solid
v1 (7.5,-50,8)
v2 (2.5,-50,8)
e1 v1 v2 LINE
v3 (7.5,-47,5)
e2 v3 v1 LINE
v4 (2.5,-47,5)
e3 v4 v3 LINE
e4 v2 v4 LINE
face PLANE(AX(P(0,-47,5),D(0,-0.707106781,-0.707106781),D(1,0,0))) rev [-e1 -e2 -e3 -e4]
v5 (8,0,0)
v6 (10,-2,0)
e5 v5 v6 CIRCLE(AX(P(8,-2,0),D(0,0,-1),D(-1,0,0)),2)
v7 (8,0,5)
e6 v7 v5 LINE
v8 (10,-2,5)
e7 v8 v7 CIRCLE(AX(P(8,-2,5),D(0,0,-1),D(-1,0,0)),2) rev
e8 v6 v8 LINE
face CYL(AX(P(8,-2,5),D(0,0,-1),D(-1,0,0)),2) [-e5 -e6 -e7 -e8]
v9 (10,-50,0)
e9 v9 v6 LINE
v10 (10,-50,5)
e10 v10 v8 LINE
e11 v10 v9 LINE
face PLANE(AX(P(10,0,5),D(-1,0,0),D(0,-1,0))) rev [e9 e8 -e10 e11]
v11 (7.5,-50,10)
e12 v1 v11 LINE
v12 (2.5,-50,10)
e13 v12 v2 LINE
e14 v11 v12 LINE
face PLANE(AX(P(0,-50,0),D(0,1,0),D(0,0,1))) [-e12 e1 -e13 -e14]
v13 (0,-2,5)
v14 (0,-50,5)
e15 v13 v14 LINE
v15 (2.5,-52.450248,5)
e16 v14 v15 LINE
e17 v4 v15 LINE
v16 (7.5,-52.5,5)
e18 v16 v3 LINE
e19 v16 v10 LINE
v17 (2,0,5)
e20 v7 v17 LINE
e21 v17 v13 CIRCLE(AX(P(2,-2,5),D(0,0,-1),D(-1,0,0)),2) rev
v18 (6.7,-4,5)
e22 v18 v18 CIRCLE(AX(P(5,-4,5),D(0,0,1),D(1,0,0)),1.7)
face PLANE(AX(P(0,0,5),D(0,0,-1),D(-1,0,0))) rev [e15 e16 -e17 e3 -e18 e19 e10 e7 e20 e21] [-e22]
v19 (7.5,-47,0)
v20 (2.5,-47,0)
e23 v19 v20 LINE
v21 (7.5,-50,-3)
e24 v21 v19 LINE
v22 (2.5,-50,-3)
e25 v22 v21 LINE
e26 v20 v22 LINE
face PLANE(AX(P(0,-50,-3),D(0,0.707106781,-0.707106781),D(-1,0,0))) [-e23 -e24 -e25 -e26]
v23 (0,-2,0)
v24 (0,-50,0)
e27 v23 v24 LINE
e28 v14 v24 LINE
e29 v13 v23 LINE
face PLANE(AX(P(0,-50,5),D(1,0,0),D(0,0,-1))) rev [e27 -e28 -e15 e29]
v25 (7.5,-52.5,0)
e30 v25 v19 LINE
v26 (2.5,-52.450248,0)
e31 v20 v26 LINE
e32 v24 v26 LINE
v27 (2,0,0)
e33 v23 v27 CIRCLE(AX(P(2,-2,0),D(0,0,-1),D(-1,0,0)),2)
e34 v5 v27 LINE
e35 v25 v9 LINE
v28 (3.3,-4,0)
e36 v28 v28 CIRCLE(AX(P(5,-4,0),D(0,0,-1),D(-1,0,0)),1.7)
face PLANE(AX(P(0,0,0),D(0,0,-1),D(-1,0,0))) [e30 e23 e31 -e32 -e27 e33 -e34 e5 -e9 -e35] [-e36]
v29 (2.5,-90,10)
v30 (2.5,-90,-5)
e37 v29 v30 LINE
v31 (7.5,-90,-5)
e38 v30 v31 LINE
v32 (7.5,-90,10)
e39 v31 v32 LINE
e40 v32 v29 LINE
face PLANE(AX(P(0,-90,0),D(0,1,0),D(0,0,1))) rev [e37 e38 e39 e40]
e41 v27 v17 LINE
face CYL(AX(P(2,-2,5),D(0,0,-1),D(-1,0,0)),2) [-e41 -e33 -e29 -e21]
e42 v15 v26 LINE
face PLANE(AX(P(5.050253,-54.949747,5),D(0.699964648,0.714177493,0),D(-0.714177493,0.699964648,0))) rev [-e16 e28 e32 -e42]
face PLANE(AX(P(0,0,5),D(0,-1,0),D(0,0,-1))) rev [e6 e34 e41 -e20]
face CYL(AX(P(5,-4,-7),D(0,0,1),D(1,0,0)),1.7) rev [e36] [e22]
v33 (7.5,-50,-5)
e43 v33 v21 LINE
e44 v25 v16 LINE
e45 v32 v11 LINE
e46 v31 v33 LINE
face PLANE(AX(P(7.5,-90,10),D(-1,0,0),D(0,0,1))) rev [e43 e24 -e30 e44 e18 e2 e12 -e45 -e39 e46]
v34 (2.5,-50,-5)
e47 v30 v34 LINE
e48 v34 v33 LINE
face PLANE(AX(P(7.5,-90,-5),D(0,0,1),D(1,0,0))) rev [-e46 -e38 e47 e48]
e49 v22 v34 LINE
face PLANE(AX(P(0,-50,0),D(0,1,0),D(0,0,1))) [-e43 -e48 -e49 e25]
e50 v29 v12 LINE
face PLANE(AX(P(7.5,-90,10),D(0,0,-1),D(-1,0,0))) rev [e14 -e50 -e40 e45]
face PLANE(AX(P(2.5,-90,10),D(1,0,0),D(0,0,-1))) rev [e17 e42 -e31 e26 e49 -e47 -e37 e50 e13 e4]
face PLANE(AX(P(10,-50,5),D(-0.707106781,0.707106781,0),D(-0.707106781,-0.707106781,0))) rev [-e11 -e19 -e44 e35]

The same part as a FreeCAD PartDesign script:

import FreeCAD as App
import Part
import Sketcher
from FreeCAD import Vector
Q = App.Units.Quantity


def edges_at(feature, points):
    """Names of the edges that pass closest to the given points."""
    edges = feature.Shape.Edges
    near = lambda p: min(range(len(edges)), key=lambda i: edges[i].distToShape(Part.Vertex(*p))[0])
    return sorted({f"Edge{near(p) + 1}" for p in points})


def add_polygon(sketch, points):
    """Adds a closed chain of lines whose ends are joined by coincident constraints."""
    first, n = sketch.GeometryCount, len(points)
    for a, b in zip(points, points[1:] + points[:1]):
        sketch.addGeometry(Part.LineSegment(App.Vector(*a, 0), App.Vector(*b, 0)), False)
    for i in range(n):
        sketch.addConstraint(Sketcher.Constraint("Coincident", first + i, 2, first + (i + 1) % n, 1))

doc = App.newDocument("Part")
body = doc.addObject("PartDesign::Body", "Body")

sketch1 = body.newObject("Sketcher::SketchObject", "Sketch")
sketch1.AttachmentSupport = (doc.getObject("XY_Plane"), [""])
sketch1.MapMode = "FlatFace"
add_polygon(sketch1, [(10, 0), (0, 0), (0, -50), (5, -55), (10, -50)])
sketch1.addConstraint([
    Sketcher.Constraint("Horizontal", 0),
    Sketcher.Constraint("Vertical", 1),
    Sketcher.Constraint("Vertical", 4),
    Sketcher.Constraint("Coincident", 0, 2, -1, 1),
    Sketcher.Constraint("Horizontal", 1, 2, 3, 2),
    Sketcher.Constraint("DistanceX", 0, 2, 0, 1, Q("10 mm")),
    Sketcher.Constraint("DistanceY", 1, 2, 1, 1, Q("50 mm")),
    Sketcher.Constraint("Angle", 3, Q("45 deg")),
    Sketcher.Constraint("Distance", 3, Q("7 mm")),
])
pad1 = body.newObject("PartDesign::Pad", "Pad")
pad1.Profile = sketch1
pad1.Length = 5
doc.recompute()

fillet = body.newObject("PartDesign::Fillet", "Fillet")
fillet.Base = (pad1, edges_at(pad1, [(0, 0, 2.5), (10, 0, 2.5)]))
fillet.Radius = 2

sketch2 = body.newObject("Sketcher::SketchObject", "Sketch001")
sketch2.AttachmentSupport = (doc.getObject("XY_Plane"), [""])
sketch2.MapMode = "FlatFace"
sketch2.AttachmentOffset = App.Placement(Vector(0, 0, 5), App.Rotation())
sketch2.addGeometry(Part.Circle(Vector(5, -4, 0), Vector(0, 0, 1), 1.7), False)
sketch2.addConstraint([
    Sketcher.Constraint("Diameter", 0, Q("3.4 mm")),
    Sketcher.Constraint("DistanceX", -1, 1, 0, 3, Q("5 mm")),
    Sketcher.Constraint("DistanceY", 0, 3, -1, 1, Q("4 mm")),
])
pocket1 = body.newObject("PartDesign::Pocket", "Pocket")
pocket1.Profile = sketch2
pocket1.Length = 12

sketch3 = body.newObject("Sketcher::SketchObject", "Sketch002")
sketch3.AttachmentSupport = (doc.getObject("XZ_Plane"), [""])
sketch3.MapMode = "FlatFace"
sketch3.AttachmentOffset = App.Placement(Vector(0, 0, 50), App.Rotation())
add_polygon(sketch3, [(8, 10), (2, 10), (2, -5), (8, -5)])
sketch3.addConstraint([
    Sketcher.Constraint("Horizontal", 0),
    Sketcher.Constraint("Vertical", 1),
    Sketcher.Constraint("Horizontal", 2),
    Sketcher.Constraint("Vertical", 3),
    Sketcher.Constraint("DistanceX", 0, 2, 0, 1, Q("5 mm")),
    Sketcher.Constraint("DistanceY", 1, 2, 1, 1, Q("15 mm")),
    Sketcher.Constraint("DistanceY", -1, 1, 0, 2, Q("10 mm")),
    Sketcher.Constraint("DistanceX", -1, 1, 0, 2, Q("2.5 mm")),
])
pad2 = body.newObject("PartDesign::Pad", "Pad001")
pad2.Profile = sketch3
pad2.Length = 40
doc.recompute()

chamfer = body.newObject("PartDesign::Chamfer", "Chamfer")
chamfer.Base = (pad2, edges_at(pad2, [(5, -50, 0), (5, -50, 5)]))
chamfer.Size = 3

doc.recompute()
